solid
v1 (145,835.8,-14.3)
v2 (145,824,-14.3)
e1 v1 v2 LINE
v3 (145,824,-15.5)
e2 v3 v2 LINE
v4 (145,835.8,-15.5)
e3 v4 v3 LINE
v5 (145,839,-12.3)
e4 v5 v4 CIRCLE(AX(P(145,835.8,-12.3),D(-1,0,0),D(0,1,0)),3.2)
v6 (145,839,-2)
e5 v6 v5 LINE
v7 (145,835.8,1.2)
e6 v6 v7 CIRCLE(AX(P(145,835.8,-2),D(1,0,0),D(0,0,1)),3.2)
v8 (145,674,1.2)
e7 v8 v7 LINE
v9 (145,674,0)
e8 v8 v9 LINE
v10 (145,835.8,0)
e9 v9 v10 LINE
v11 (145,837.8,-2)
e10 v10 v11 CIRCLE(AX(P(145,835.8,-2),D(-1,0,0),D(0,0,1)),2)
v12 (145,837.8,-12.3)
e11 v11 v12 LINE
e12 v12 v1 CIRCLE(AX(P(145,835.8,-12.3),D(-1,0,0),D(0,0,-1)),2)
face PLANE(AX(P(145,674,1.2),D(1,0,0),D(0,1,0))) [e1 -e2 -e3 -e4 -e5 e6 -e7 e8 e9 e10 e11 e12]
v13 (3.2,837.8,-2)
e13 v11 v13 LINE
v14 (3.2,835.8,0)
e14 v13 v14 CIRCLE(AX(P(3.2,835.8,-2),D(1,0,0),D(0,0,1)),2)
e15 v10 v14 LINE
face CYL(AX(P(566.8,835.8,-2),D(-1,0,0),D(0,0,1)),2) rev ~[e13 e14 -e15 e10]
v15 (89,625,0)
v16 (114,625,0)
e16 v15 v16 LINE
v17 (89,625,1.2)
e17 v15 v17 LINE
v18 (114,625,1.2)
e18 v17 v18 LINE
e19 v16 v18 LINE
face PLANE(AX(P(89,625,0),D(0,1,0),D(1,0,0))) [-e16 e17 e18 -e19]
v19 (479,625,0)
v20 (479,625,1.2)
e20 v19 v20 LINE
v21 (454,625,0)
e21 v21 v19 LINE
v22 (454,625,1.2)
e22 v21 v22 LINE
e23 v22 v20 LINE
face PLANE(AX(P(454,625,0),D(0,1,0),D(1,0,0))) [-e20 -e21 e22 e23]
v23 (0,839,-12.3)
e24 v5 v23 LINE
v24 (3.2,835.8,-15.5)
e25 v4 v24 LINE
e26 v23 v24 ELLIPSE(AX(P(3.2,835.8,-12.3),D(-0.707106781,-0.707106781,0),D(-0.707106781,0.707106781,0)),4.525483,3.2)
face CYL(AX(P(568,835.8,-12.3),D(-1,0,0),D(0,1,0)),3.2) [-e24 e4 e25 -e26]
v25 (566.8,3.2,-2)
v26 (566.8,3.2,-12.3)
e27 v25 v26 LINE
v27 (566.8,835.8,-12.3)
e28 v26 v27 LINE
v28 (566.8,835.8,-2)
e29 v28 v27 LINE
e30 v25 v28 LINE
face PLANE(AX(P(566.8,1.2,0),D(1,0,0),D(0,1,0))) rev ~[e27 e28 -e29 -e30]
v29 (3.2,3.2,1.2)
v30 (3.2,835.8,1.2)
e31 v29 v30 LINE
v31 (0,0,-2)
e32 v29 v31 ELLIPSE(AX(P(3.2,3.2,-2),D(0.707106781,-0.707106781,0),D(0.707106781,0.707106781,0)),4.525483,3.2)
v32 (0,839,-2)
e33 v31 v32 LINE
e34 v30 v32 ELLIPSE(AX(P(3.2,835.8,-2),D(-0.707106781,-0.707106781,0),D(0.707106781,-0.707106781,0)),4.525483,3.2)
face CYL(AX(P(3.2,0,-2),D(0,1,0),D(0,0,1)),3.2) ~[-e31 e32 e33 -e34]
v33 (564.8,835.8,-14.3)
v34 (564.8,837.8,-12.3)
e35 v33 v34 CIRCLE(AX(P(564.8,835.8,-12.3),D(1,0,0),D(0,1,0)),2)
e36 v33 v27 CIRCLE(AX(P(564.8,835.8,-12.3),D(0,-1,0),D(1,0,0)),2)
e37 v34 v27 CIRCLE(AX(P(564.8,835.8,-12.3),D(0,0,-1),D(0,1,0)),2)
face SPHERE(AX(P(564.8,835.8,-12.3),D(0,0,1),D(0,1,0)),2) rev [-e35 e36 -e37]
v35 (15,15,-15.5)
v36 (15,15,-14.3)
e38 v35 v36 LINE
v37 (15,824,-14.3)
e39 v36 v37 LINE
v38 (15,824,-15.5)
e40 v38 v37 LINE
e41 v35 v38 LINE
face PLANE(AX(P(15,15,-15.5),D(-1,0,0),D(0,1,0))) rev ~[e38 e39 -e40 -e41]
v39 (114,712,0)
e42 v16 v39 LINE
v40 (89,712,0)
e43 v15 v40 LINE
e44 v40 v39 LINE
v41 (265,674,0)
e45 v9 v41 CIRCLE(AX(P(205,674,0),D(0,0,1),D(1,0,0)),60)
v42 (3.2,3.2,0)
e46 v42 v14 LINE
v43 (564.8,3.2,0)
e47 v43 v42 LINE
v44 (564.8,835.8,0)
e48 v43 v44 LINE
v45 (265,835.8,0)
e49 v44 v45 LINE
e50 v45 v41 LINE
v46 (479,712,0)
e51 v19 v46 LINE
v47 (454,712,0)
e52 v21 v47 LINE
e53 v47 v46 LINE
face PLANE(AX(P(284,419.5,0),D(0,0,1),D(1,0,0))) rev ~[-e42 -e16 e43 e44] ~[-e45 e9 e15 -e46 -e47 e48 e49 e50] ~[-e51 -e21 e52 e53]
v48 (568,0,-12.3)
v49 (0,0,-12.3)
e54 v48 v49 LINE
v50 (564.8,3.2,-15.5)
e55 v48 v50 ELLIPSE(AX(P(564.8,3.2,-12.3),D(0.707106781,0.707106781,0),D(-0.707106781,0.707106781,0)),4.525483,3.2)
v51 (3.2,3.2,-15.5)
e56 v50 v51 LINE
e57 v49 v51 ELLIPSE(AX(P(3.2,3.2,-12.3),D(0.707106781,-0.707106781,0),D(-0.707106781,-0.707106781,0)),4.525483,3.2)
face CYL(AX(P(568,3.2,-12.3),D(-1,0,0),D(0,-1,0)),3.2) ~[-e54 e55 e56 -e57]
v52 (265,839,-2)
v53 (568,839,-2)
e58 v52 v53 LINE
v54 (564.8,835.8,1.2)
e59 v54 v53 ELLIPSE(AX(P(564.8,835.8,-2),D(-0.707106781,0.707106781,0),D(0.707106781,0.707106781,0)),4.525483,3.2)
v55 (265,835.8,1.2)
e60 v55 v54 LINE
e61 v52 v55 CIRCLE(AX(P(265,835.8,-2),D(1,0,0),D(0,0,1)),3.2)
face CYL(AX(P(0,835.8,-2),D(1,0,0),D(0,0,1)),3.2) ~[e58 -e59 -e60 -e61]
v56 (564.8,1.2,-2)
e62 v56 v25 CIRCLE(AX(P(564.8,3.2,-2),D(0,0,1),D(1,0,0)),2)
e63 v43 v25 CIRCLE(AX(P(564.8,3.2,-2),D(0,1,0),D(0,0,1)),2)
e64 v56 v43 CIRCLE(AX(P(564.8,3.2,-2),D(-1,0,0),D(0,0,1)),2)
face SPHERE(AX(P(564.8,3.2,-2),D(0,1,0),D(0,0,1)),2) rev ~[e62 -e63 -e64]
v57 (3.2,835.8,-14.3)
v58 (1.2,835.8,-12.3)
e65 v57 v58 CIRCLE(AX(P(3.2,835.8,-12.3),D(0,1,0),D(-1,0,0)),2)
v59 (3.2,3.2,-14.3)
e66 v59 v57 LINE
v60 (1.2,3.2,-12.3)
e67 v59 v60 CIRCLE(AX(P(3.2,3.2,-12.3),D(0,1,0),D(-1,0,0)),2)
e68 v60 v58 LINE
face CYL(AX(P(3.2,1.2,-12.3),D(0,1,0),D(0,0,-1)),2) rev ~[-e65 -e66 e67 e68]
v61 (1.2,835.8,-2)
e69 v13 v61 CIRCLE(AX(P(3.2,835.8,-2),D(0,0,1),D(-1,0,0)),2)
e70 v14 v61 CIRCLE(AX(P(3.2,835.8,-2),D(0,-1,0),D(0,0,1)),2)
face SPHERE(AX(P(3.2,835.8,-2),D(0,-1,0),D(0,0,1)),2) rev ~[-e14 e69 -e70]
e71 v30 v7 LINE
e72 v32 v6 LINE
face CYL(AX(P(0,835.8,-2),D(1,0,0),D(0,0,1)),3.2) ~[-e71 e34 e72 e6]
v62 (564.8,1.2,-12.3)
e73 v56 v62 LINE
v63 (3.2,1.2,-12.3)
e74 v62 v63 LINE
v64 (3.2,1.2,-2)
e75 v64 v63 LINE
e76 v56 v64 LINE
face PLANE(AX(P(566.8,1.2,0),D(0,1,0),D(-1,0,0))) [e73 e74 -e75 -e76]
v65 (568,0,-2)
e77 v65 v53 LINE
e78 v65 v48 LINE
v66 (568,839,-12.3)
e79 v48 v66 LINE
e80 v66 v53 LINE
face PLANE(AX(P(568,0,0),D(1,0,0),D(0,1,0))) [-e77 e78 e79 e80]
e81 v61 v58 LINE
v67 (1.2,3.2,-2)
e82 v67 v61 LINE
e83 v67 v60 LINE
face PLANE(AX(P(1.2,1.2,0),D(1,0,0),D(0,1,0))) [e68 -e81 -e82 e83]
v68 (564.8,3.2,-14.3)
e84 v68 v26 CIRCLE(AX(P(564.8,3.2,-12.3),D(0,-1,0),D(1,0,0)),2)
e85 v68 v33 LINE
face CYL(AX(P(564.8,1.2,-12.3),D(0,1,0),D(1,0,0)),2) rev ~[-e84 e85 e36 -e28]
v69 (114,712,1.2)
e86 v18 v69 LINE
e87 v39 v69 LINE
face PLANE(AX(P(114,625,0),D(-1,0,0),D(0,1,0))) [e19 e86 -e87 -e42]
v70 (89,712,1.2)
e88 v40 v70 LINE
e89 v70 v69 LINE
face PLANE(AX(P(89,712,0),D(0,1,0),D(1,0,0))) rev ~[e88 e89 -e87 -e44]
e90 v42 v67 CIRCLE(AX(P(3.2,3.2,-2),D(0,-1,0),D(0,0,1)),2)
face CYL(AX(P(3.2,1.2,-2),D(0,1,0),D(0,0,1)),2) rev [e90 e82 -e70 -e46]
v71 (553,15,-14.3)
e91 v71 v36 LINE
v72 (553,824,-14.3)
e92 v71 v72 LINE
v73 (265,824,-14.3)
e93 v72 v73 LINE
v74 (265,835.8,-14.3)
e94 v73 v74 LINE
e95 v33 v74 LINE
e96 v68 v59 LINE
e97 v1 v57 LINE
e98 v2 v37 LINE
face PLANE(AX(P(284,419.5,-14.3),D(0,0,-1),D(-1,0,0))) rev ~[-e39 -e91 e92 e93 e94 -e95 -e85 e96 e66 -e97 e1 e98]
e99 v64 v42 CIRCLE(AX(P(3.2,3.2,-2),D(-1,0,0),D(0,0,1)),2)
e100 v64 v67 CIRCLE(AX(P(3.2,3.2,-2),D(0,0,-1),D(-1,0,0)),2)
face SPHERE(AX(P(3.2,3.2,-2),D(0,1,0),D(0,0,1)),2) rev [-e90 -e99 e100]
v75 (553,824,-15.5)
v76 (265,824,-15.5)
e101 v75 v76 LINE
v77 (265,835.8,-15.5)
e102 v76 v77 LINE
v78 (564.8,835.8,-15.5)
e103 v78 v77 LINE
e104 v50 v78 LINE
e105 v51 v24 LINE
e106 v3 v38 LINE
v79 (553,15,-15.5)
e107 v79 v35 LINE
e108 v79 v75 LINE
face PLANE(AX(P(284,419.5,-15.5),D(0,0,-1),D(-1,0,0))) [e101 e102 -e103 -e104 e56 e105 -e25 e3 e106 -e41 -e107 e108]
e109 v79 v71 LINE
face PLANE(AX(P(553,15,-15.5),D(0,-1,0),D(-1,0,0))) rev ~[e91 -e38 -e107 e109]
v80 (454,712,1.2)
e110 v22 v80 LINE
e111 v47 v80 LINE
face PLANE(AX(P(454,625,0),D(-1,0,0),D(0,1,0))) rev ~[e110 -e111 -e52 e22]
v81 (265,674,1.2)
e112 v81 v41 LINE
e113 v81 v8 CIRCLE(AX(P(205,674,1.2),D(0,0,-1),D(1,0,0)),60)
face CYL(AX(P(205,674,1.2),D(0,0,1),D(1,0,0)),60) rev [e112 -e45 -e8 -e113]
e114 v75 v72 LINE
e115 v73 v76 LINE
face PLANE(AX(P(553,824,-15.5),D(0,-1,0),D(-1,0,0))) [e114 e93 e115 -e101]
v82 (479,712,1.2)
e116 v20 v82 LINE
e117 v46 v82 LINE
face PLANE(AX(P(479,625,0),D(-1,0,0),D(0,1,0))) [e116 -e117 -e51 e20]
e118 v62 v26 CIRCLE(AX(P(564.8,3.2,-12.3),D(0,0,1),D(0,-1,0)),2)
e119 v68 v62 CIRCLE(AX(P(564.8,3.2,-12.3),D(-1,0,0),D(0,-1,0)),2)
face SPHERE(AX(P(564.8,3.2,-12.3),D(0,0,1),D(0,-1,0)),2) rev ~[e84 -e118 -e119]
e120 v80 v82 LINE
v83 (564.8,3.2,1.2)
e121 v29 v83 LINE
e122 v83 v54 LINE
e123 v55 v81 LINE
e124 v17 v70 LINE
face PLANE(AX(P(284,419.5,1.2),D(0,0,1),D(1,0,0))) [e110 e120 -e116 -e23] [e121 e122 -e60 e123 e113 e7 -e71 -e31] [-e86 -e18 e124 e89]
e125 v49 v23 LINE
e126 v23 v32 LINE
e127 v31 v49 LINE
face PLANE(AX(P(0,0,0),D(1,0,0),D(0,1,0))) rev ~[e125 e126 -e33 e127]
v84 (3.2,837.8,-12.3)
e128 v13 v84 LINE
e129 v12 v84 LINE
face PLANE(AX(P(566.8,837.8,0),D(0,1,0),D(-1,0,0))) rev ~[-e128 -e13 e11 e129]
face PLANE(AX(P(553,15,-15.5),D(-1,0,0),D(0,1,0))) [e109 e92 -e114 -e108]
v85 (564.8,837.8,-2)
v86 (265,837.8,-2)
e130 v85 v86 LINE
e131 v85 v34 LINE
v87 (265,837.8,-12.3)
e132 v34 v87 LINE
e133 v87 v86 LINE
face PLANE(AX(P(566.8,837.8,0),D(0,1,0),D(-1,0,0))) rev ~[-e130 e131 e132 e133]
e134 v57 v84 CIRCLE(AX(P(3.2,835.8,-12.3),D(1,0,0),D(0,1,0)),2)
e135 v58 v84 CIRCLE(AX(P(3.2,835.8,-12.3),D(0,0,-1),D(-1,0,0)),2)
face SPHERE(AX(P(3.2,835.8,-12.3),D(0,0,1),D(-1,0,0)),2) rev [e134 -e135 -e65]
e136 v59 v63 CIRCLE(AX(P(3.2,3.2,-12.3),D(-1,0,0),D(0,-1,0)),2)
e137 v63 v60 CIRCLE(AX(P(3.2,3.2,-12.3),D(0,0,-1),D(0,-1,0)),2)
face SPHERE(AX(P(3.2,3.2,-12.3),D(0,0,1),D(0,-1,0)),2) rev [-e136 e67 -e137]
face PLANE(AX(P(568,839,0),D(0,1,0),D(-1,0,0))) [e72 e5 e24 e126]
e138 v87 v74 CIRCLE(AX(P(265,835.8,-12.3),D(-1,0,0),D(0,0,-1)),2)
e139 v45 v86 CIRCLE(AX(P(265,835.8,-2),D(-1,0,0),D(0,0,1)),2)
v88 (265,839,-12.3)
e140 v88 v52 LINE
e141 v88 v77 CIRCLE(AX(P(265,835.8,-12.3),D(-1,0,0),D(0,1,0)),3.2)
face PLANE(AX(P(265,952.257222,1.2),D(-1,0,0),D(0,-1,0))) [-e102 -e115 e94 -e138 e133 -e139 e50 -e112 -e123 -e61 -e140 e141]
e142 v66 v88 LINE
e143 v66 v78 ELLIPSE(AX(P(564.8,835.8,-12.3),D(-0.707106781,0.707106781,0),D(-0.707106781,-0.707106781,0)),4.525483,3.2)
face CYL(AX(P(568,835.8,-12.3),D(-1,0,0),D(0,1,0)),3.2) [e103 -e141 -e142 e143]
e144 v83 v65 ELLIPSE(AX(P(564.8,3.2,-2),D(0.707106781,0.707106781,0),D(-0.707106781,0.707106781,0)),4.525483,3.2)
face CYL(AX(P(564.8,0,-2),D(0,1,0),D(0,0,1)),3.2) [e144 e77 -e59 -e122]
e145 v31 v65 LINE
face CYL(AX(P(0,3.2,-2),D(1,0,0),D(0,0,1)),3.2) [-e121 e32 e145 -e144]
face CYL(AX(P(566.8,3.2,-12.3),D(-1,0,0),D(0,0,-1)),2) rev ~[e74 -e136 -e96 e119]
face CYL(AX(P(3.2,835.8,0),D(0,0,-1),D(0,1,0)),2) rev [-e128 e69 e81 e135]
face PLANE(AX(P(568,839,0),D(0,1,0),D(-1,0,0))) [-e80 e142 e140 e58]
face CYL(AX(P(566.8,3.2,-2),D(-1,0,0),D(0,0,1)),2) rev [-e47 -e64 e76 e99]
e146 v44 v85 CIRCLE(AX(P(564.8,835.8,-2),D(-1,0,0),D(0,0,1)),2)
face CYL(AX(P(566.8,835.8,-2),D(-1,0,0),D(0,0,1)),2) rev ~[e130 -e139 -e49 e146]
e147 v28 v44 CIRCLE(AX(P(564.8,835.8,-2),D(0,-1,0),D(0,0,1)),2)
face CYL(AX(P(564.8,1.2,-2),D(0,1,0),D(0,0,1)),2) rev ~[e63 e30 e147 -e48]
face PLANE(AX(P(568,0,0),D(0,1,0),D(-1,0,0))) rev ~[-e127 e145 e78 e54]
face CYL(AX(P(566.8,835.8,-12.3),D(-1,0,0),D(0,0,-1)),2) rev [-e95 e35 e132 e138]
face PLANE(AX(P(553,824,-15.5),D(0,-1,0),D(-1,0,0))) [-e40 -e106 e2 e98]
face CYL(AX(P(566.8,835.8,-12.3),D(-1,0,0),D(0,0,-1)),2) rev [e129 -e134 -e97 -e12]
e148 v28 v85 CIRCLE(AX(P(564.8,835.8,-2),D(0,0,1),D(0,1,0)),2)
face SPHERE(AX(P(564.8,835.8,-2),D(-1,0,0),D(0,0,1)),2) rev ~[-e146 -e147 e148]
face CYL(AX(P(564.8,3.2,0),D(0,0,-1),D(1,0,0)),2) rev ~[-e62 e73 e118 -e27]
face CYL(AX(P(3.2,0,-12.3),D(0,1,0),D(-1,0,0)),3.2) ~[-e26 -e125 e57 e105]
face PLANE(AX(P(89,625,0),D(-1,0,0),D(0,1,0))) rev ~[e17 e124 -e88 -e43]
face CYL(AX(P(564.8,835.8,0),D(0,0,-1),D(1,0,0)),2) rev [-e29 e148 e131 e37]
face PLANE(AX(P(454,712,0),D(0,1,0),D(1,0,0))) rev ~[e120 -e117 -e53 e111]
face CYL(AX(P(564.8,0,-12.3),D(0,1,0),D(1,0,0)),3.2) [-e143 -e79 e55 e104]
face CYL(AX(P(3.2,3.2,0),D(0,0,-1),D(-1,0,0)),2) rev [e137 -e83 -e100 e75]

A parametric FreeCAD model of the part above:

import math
import FreeCAD as App
import Part
import Sketcher
from FreeCAD import Vector
Q = App.Units.Quantity


def edges_at(feature, points):
    """Names of the edges that pass closest to the given points."""
    edges = feature.Shape.Edges
    near = lambda p: min(range(len(edges)), key=lambda i: edges[i].distToShape(Part.Vertex(*p))[0])
    return sorted({f"Edge{near(p) + 1}" for p in points})


def add_polygon(sketch, points):
    """Adds a closed chain of lines whose ends are joined by coincident constraints."""
    first, n = sketch.GeometryCount, len(points)
    for a, b in zip(points, points[1:] + points[:1]):
        sketch.addGeometry(Part.LineSegment(App.Vector(*a, 0), App.Vector(*b, 0)), False)
    for i in range(n):
        sketch.addConstraint(Sketcher.Constraint("Coincident", first + i, 2, first + (i + 1) % n, 1))

doc = App.newDocument("Part")
body = doc.addObject("PartDesign::Body", "Body")

# Sketch on XY plane
sketch1 = body.newObject("Sketcher::SketchObject", "Sketch")
sketch1.AttachmentSupport = (doc.getObject("XY_Plane"), [""])
sketch1.MapMode = "FlatFace"
add_polygon(sketch1, [(0, 839), (0, 0), (568, 0), (568, 839)])  # lines 0-3
add_polygon(sketch1, [(114, 625), (89, 625), (89, 712), (114, 712)])  # lines 4-7
add_polygon(sketch1, [(479, 625), (454, 625), (454, 712), (479, 712)])  # lines 8-11
sketch1.addConstraint([
    Sketcher.Constraint("Vertical", 0),
    Sketcher.Constraint("Horizontal", 1),
    Sketcher.Constraint("Vertical", 2),
    Sketcher.Constraint("Horizontal", 3),
    Sketcher.Constraint("Horizontal", 4),
    Sketcher.Constraint("Vertical", 5),
    Sketcher.Constraint("Horizontal", 6),
    Sketcher.Constraint("Vertical", 7),
    Sketcher.Constraint("Horizontal", 8),
    Sketcher.Constraint("Vertical", 9),
    Sketcher.Constraint("Horizontal", 10),
    Sketcher.Constraint("Vertical", 11),
    Sketcher.Constraint("Coincident", 0, 2, -1, 1),
    Sketcher.Constraint("Horizontal", 7, 2, 8, 2),
    Sketcher.Constraint("Horizontal", 6, 2, 9, 2),
    Sketcher.Constraint("Equal", 6, 8),
    Sketcher.Constraint("DistanceX", 1, 1, 1, 2, Q("568 mm")),
    Sketcher.Constraint("DistanceX", 4, 2, 4, 1, Q("25 mm")),
    Sketcher.Constraint("DistanceY", 0, 2, 0, 1, Q("839 mm")),
    Sketcher.Constraint("DistanceY", 5, 1, 5, 2, Q("87 mm")),
    Sketcher.Constraint("DistanceX", -1, 1, 4, 2, Q("89 mm")),
    Sketcher.Constraint("DistanceY", -1, 1, 4, 2, Q("625 mm")),
    Sketcher.Constraint("DistanceX", -1, 1, 8, 2, Q("454 mm")),
])
pad1 = body.newObject("PartDesign::Pad", "Pad")
pad1.Profile = sketch1
pad1.Length = 1.2

# Sketch on XY plane
sketch2 = body.newObject("Sketcher::SketchObject", "Sketch001")
sketch2.AttachmentSupport = (doc.getObject("XY_Plane"), [""])
sketch2.MapMode = "FlatFace"
add_polygon(sketch2, [(568, 839), (568, 0), (0, 0), (0, 839)])  # lines 0-3
add_polygon(sketch2, [(1.2, 1.2), (566.8, 1.2), (566.8, 837.8), (1.2, 837.8)])  # lines 4-7
sketch2.addConstraint([
    Sketcher.Constraint("Vertical", 0),
    Sketcher.Constraint("Horizontal", 1),
    Sketcher.Constraint("Vertical", 2),
    Sketcher.Constraint("Horizontal", 3),
    Sketcher.Constraint("Horizontal", 4),
    Sketcher.Constraint("Vertical", 5),
    Sketcher.Constraint("Horizontal", 6),
    Sketcher.Constraint("Vertical", 7),
    Sketcher.Constraint("Coincident", 1, 2, -1, 1),
    Sketcher.Constraint("DistanceX", 1, 2, 1, 1, Q("568 mm")),
    Sketcher.Constraint("DistanceY", 0, 2, 0, 1, Q("839 mm")),
    Sketcher.Constraint("DistanceX", 4, 1, 4, 2, Q("565.6 mm")),
    Sketcher.Constraint("DistanceY", 5, 1, 5, 2, Q("836.6 mm")),
    Sketcher.Constraint("DistanceX", -1, 1, 4, 2, Q("566.8 mm")),
    Sketcher.Constraint("DistanceY", -1, 1, 4, 2, Q("1.2 mm")),
])
pad2 = body.newObject("PartDesign::Pad", "Pad001")
pad2.Profile = sketch2
pad2.Length = 15.5
pad2.Reversed = True

# Sketch on XY plane
sketch3 = body.newObject("Sketcher::SketchObject", "Sketch002")
sketch3.AttachmentSupport = (doc.getObject("XY_Plane"), [""])
sketch3.MapMode = "FlatFace"
sketch3.AttachmentOffset = App.Placement(Vector(0, 0, -15.5), App.Rotation())
add_polygon(sketch3, [(568, 839), (568, 0), (0, 0), (0, 839)])  # lines 0-3
add_polygon(sketch3, [(15, 15), (553, 15), (553, 824), (15, 824)])  # lines 4-7
sketch3.addConstraint([
    Sketcher.Constraint("Vertical", 0),
    Sketcher.Constraint("Horizontal", 1),
    Sketcher.Constraint("Vertical", 2),
    Sketcher.Constraint("Horizontal", 3),
    Sketcher.Constraint("Horizontal", 4),
    Sketcher.Constraint("Vertical", 5),
    Sketcher.Constraint("Horizontal", 6),
    Sketcher.Constraint("Vertical", 7),
    Sketcher.Constraint("Coincident", 1, 2, -1, 1),
    Sketcher.Constraint("DistanceX", 1, 2, 1, 1, Q("568 mm")),
    Sketcher.Constraint("DistanceX", 4, 1, 4, 2, Q("538 mm")),
    Sketcher.Constraint("DistanceY", 0, 2, 0, 1, Q("839 mm")),
    Sketcher.Constraint("DistanceY", 5, 1, 5, 2, Q("809 mm")),
    Sketcher.Constraint("DistanceX", -1, 1, 4, 2, Q("553 mm")),
    Sketcher.Constraint("DistanceY", -1, 1, 4, 2, Q("15 mm")),
])
pad3 = body.newObject("PartDesign::Pad", "Pad002")
pad3.Profile = sketch3
pad3.Length = 1.2
doc.recompute()

fillet = body.newObject("PartDesign::Fillet", "Fillet")
fillet.Base = (pad3, edges_at(pad3, [
    (1.2, 419.5, 0),
    (284, 837.8, 0),
    (566.8, 419.5, 0),
    (284, 1.2, 0),
    (566.8, 1.2, -7.15),
    (1.2, 1.2, -7.15),
    (284, 1.2, -14.3),
    (566.8, 837.8, -7.15),
    (1.2, 837.8, -7.15),
    (1.2, 419.5, -14.3),
    (284, 837.8, -14.3),
    (566.8, 419.5, -14.3),
]))
fillet.Radius = 2
doc.recompute()

fillet2 = body.newObject("PartDesign::Fillet", "Fillet001")
fillet2.Base = (fillet, edges_at(fillet, [
    (568, 419.5, 1.2),
    (284, 839, 1.2),
    (0, 419.5, 1.2),
    (284, 0, 1.2),
]))
fillet2.Radius = 3.2
doc.recompute()

fillet3 = body.newObject("PartDesign::Fillet", "Fillet002")
fillet3.Base = (fillet2, edges_at(fillet2, [
    (284, 0, -15.5),
    (0, 419.5, -15.5),
    (284, 839, -15.5),
    (568, 419.5, -15.5),
]))
fillet3.Radius = 3.2

# Sketch on XY plane
sketch4 = body.newObject("Sketcher::SketchObject", "Sketch003")
sketch4.AttachmentSupport = (doc.getObject("XY_Plane"), [""])
sketch4.MapMode = "FlatFace"
sketch4.AttachmentOffset = App.Placement(Vector(0, 0, 1.2), App.Rotation())
sketch4.addGeometry([
    Part.LineSegment(Vector(265, 674, 0), Vector(265, 952.257222, 0)),
    Part.ArcOfCircle(Part.Circle(Vector(205, 952.257222, 0), Vector(0, 0, 1), 60), math.radians(0), math.radians(180)),
    Part.LineSegment(Vector(145, 952.257222, 0), Vector(145, 674, 0)),
    Part.ArcOfCircle(Part.Circle(Vector(205, 674, 0), Vector(0, 0, 1), 60), math.radians(180), math.radians(360)),
], False)
sketch4.addConstraint([
    Sketcher.Constraint("Tangent", 0, 2, 1, 1),
    Sketcher.Constraint("Tangent", 1, 2, 2, 1),
    Sketcher.Constraint("Tangent", 2, 2, 3, 1),
    Sketcher.Constraint("Tangent", 3, 2, 0, 1),
    Sketcher.Constraint("Vertical", 0),
    Sketcher.Constraint("Vertical", 2),
    Sketcher.Constraint("Radius", 1, Q("60 mm")),
    Sketcher.Constraint("DistanceX", -1, 1, 1, 3, Q("205 mm")),
    Sketcher.Constraint("DistanceY", -1, 1, 3, 3, Q("674 mm")),
    Sketcher.Constraint("DistanceY", 0, 1, 0, 2, Q("278.257222 mm")),
])
pocket1 = body.newObject("PartDesign::Pocket", "Pocket")
pocket1.Profile = sketch4
pocket1.Type = "ThroughAll"

doc.recompute()
